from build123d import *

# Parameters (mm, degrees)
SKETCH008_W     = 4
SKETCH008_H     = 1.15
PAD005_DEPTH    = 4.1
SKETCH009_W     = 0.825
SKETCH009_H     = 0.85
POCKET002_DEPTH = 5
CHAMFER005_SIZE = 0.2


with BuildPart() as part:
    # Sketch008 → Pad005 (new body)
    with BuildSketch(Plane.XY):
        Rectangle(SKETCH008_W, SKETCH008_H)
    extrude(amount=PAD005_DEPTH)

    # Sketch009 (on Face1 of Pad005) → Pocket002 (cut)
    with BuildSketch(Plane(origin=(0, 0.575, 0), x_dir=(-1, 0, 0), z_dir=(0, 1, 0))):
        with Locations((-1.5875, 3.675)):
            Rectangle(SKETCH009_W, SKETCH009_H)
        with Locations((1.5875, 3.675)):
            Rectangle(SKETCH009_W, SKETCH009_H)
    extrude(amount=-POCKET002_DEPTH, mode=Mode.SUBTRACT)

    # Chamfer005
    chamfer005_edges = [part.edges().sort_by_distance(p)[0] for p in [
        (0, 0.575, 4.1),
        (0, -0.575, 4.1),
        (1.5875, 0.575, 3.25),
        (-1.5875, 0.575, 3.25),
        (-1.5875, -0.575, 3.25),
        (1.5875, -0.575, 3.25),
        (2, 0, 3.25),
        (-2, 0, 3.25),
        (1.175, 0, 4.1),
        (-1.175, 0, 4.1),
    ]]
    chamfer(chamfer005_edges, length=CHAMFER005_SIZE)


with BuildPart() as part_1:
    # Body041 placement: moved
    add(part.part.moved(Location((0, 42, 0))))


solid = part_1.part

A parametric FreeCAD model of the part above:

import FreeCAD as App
import Part
import Sketcher

V = App.Vector


def edges_at(feature, points):
    """Names of the edges that pass closest to the given points."""
    edges = feature.Shape.Edges
    near = lambda p: min(range(len(edges)), key=lambda i: edges[i].distToShape(Part.Vertex(*p))[0])
    return sorted({f"Edge{near(p) + 1}" for p in points})

doc = App.newDocument("Part")
params = doc.addObject("Spreadsheet::Sheet", "Params")
for row, (alias, value) in enumerate([
    ("sketch1_width", "4 mm"),
    ("sketch1_height", "1.15 mm"),
    ("pad1_length", "4.1 mm"),
    ("sketch2_height", "0.85 mm"),
    ("pocket1_length", "5 mm"),
    ("chamfer_size", "0.2 mm"),
], start=1):
    params.set(f"A{row}", alias)
    params.set(f"B{row}", "=" + value)
    params.setAlias(f"B{row}", alias)

body = doc.addObject("PartDesign::Body", "Body")

sketch1 = body.newObject("Sketcher::SketchObject", "Sketch")
sketch1.AttachmentSupport = (doc.getObject("XY_Plane"), [""])
sketch1.MapMode = "FlatFace"
sketch1.addGeometry([
    Part.LineSegment(V(-2, 0.6, 0), V(-2, -0.6, 0)),
    Part.LineSegment(V(-2, -0.6, 0), V(2, -0.6, 0)),
    Part.LineSegment(V(2, -0.6, 0), V(2, 0.6, 0)),
    Part.LineSegment(V(2, 0.6, 0), V(-2, 0.6, 0)),
], False)
sketch1.addConstraint([
    Sketcher.Constraint("Coincident", 0, 2, 1, 1),
    Sketcher.Constraint("Coincident", 1, 2, 2, 1),
    Sketcher.Constraint("Coincident", 2, 2, 3, 1),
    Sketcher.Constraint("Coincident", 3, 2, 0, 1),
    Sketcher.Constraint("Vertical", 0),
    Sketcher.Constraint("Horizontal", 1),
    Sketcher.Constraint("Vertical", 2),
    Sketcher.Constraint("Horizontal", 3),
    Sketcher.Constraint("Symmetric", 0, 2, 2, 2, -1, 1),
    Sketcher.Constraint("DistanceX", 1, 1, 1, 2, 4.0),
    Sketcher.Constraint("DistanceY", 0, 2, 0, 1, 1.15),
])
sketch1.setExpression("Constraints[9]", "Params.sketch1_width")
sketch1.setExpression("Constraints[10]", "Params.sketch1_height")
pad1 = body.newObject("PartDesign::Pad", "Pad")
pad1.Profile = sketch1
pad1.setExpression("Length", "Params.pad1_length")

sketch2 = body.newObject("Sketcher::SketchObject", "Sketch001")
sketch2.AttachmentSupport = (doc.getObject("XZ_Plane"), [""])
sketch2.MapMode = "FlatFace"
sketch2.AttachmentOffset = App.Placement(V(0, 0, -0.575), App.Rotation())
sketch2.addGeometry([
    Part.LineSegment(V(2, 4.1, 0), V(2, 3.2, 0)),
    Part.LineSegment(V(2, 3.2, 0), V(1.2, 3.2, 0)),
    Part.LineSegment(V(1.2, 3.2, 0), V(1.2, 4.1, 0)),
    Part.LineSegment(V(1.2, 4.1, 0), V(2, 4.1, 0)),
    Part.LineSegment(V(-1.2, 4.1, 0), V(-1.2, 3.2, 0)),
    Part.LineSegment(V(-1.2, 3.2, 0), V(-2, 3.2, 0)),
    Part.LineSegment(V(-2, 3.2, 0), V(-2, 4.1, 0)),
    Part.LineSegment(V(-2, 4.1, 0), V(-1.2, 4.1, 0)),
], False)
sketch2.addConstraint([
    Sketcher.Constraint("Coincident", 0, 2, 1, 1),
    Sketcher.Constraint("Coincident", 1, 2, 2, 1),
    Sketcher.Constraint("Coincident", 2, 2, 3, 1),
    Sketcher.Constraint("Coincident", 3, 2, 0, 1),
    Sketcher.Constraint("Coincident", 4, 2, 5, 1),
    Sketcher.Constraint("Coincident", 5, 2, 6, 1),
    Sketcher.Constraint("Coincident", 6, 2, 7, 1),
    Sketcher.Constraint("Coincident", 7, 2, 4, 1),
    Sketcher.Constraint("Vertical", 0),
    Sketcher.Constraint("Horizontal", 1),
    Sketcher.Constraint("Vertical", 2),
    Sketcher.Constraint("Horizontal", 3),
    Sketcher.Constraint("Vertical", 4),
    Sketcher.Constraint("Horizontal", 5),
    Sketcher.Constraint("Vertical", 6),
    Sketcher.Constraint("Horizontal", 7),
    Sketcher.Constraint("Symmetric", 1, 2, 4, 2, -2),
    Sketcher.Constraint("Symmetric", 3, 2, 6, 2, -2),
    Sketcher.Constraint("DistanceX", -1, 1, 0, 2, 2.0),
    Sketcher.Constraint("DistanceY", 0, 2, 0, 1, 0.85),
    Sketcher.Constraint("DistanceY", -1, 1, 2, 2, 4.1),
    Sketcher.Constraint("DistanceX", 1, 2, 1, 1, 0.825),
])
sketch2.setExpression("Constraints[19]", "Params.sketch2_height")
pocket1 = body.newObject("PartDesign::Pocket", "Pocket")
pocket1.Profile = sketch2
pocket1.setExpression("Length", "Params.pocket1_length")
pocket1.Reversed = True
doc.recompute()

chamfer = body.newObject("PartDesign::Chamfer", "Chamfer")
chamfer.Base = (pocket1, edges_at(pocket1, [
    (0, 0.575, 4.1),
    (0, -0.575, 4.1),
    (1.587, 0.575, 3.25),
    (-1.587, 0.575, 3.25),
    (-1.587, -0.575, 3.25),
    (1.587, -0.575, 3.25),
    (2, 0, 3.25),
    (-2, 0, 3.25),
    (1.175, 0, 4.1),
    (-1.175, 0, 4.1),
]))
chamfer.setExpression("Size", "Params.chamfer_size")
body2 = doc.addObject("PartDesign::Body", "Body001")
doc.recompute()

body.Placement = App.Placement(V(0, 42, 0), App.Rotation(V(0, 0, 1), 0))
boolean = body2.newObject("PartDesign::Boolean", "Boolean")
boolean.Type = "Fuse"
boolean.addObjects([body])

doc.recompute()
